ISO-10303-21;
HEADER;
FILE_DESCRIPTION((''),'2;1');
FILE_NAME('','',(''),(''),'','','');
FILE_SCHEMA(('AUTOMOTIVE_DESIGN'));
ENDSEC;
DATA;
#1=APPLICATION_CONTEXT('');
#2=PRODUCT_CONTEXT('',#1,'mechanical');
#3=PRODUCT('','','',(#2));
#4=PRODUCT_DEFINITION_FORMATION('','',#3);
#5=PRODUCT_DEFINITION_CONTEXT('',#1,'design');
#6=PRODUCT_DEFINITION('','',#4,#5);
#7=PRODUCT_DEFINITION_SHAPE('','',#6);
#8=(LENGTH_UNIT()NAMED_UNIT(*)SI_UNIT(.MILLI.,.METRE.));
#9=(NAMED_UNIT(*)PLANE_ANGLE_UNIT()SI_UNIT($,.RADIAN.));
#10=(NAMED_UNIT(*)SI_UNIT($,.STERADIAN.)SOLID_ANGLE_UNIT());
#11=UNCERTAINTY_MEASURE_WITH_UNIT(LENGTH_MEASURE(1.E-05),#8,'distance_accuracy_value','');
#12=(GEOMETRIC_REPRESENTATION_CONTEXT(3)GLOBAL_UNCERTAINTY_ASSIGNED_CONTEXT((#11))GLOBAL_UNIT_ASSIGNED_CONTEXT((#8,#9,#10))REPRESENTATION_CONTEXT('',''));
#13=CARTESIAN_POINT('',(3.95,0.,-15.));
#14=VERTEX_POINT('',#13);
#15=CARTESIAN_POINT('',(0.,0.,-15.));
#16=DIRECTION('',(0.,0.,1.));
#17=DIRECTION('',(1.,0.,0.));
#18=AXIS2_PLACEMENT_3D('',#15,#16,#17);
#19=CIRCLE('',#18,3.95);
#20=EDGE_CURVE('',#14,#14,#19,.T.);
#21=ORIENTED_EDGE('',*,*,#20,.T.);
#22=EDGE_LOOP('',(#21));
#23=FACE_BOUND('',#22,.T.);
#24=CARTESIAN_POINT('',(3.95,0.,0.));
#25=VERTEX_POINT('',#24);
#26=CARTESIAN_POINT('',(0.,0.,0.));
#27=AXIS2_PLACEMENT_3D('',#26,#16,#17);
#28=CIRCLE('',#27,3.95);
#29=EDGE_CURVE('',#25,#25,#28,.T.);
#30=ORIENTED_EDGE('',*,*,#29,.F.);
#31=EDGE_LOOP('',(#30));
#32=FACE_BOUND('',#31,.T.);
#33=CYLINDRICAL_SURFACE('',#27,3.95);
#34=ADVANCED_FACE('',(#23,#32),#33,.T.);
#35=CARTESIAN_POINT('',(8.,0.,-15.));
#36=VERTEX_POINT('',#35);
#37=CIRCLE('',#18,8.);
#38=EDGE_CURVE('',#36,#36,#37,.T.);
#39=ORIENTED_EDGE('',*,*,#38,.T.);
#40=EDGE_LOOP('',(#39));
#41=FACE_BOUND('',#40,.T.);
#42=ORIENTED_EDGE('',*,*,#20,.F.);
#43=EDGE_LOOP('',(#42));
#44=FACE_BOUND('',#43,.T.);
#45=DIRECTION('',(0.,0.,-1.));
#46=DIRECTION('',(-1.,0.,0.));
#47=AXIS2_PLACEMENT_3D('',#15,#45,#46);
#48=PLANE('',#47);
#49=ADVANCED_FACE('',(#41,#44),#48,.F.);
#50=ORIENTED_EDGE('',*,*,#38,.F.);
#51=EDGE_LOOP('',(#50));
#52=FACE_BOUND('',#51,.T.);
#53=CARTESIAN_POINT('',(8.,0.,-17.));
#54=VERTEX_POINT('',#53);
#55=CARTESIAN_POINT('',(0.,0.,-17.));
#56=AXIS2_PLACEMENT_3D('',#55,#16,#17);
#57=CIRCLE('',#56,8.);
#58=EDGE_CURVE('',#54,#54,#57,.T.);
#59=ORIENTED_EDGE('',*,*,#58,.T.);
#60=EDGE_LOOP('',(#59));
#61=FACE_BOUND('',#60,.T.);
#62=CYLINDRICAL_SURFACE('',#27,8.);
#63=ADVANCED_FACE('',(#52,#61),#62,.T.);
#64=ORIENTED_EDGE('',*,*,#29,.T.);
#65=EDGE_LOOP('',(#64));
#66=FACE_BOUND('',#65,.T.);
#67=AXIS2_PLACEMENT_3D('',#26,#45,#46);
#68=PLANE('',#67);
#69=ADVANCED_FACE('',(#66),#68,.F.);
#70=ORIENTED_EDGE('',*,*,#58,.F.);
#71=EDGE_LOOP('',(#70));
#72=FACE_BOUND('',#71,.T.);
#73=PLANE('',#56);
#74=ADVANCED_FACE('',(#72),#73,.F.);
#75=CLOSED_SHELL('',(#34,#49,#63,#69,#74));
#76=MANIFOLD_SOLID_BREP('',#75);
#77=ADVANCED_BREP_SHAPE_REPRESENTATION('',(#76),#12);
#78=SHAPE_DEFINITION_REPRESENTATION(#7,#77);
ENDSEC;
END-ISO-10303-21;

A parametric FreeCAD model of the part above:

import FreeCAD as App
import Part
import Sketcher
from FreeCAD import Vector


def add_polygon(sketch, points):
    """Adds a closed chain of lines whose ends are joined by coincident constraints."""
    first, n = sketch.GeometryCount, len(points)
    for a, b in zip(points, points[1:] + points[:1]):
        sketch.addGeometry(Part.LineSegment(App.Vector(*a, 0), App.Vector(*b, 0)), False)
    for i in range(n):
        sketch.addConstraint(Sketcher.Constraint("Coincident", first + i, 2, first + (i + 1) % n, 1))

doc = App.newDocument("Part")
params = doc.addObject("Spreadsheet::Sheet", "Params")
for row, (alias, value) in enumerate([
    ("sketch1_width", "8 mm"),
    ("sketch1_height", "15 mm"),
    ("sketch1_height2", "2 mm"),
    ("sketch1_width2", "3.95 mm"),
    ("revolution_angle", "360 deg"),
], start=1):
    params.set(f"A{row}", alias)
    params.set(f"B{row}", "=" + value)
    params.setAlias(f"B{row}", alias)

body = doc.addObject("PartDesign::Body", "Body")

# Sketch on XZ plane
sketch1 = body.newObject("Sketcher::SketchObject", "Sketch")
sketch1.AttachmentSupport = (doc.getObject("XZ_Plane"), [""])
sketch1.MapMode = "FlatFace"
add_polygon(sketch1, [(0, 0), (4, 0), (4, -15), (8, -15), (8, -17), (0, -17)])  # lines 0-5
sketch1.addConstraint([
    Sketcher.Constraint("Horizontal", 0),
    Sketcher.Constraint("Vertical", 1),
    Sketcher.Constraint("Horizontal", 2),
    Sketcher.Constraint("Vertical", 3),
    Sketcher.Constraint("Horizontal", 4),
    Sketcher.Constraint("Vertical", 5),
    Sketcher.Constraint("Coincident", 5, 2, -1, 1),
    Sketcher.Constraint("DistanceX", 4, 2, 4, 1, 8.0),
    Sketcher.Constraint("DistanceY", 1, 2, 1, 1, 15.0),
    Sketcher.Constraint("DistanceY", 3, 2, 3, 1, 2.0),
    Sketcher.Constraint("DistanceX", 0, 1, 0, 2, 3.95),
])
sketch1.setExpression("Constraints[13]", "Params.sketch1_width")
sketch1.setExpression("Constraints[14]", "Params.sketch1_height")
sketch1.setExpression("Constraints[15]", "Params.sketch1_height2")
sketch1.setExpression("Constraints[16]", "Params.sketch1_width2")
revolution = body.newObject("PartDesign::Revolution", "Revolution")
revolution.Profile = sketch1
revolution.ReferenceAxis = (sketch1, ["V_Axis"])
revolution.setExpression("Angle", "Params.revolution_angle")

doc.recompute()
